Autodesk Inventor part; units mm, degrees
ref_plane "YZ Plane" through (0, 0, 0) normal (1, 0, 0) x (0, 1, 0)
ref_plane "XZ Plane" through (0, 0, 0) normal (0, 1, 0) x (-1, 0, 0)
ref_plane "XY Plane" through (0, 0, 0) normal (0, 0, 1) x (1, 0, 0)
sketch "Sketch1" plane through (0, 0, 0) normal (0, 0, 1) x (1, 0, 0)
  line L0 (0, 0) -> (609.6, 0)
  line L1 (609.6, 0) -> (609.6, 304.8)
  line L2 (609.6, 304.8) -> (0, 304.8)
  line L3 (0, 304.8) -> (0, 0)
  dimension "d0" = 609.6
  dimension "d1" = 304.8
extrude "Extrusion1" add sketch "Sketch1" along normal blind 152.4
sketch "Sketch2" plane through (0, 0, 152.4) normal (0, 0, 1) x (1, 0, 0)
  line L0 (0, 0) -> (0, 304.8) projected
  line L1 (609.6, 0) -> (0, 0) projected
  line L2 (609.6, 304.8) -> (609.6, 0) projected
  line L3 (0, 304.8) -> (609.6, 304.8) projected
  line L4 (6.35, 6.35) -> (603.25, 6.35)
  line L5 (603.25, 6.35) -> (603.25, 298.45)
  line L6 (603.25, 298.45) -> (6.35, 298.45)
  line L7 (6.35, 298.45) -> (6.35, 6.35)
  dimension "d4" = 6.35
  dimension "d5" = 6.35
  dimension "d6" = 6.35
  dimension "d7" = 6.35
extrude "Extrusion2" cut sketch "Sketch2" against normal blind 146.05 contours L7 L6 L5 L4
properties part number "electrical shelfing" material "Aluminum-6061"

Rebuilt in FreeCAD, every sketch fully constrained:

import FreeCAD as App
import Part
import Sketcher
Q = App.Units.Quantity


def add_polygon(sketch, points):
    """Adds a closed chain of lines whose ends are joined by coincident constraints."""
    first, n = sketch.GeometryCount, len(points)
    for a, b in zip(points, points[1:] + points[:1]):
        sketch.addGeometry(Part.LineSegment(App.Vector(*a, 0), App.Vector(*b, 0)), False)
    for i in range(n):
        sketch.addConstraint(Sketcher.Constraint("Coincident", first + i, 2, first + (i + 1) % n, 1))

doc = App.newDocument("Part")
body = doc.addObject("PartDesign::Body", "Body")

sketch1 = doc.addObject("Sketcher::SketchObject", "Sketch")
body.addObject(sketch1)
sketch1.AttachmentSupport = (doc.XY_Plane, [""])
sketch1.MapMode = "FlatFace"
add_polygon(sketch1, [(0, 305), (0, 0), (610, 0), (610, 305)])
sketch1.addConstraint(Sketcher.Constraint("Vertical", 0))
sketch1.addConstraint(Sketcher.Constraint("Horizontal", 1))
sketch1.addConstraint(Sketcher.Constraint("Vertical", 2))
sketch1.addConstraint(Sketcher.Constraint("Horizontal", 3))
sketch1.addConstraint(Sketcher.Constraint("Coincident", 0, 2, -1, 1))
sketch1.addConstraint(Sketcher.Constraint("DistanceX", 1, 1, 1, 2, Q("24 in")))
sketch1.addConstraint(Sketcher.Constraint("DistanceY", 0, 2, 0, 1, Q("12 in")))
pad1 = doc.addObject("PartDesign::Pad", "Pad")
body.addObject(pad1)
pad1.Profile = sketch1
pad1.Length = Q("6 in")

sketch2 = doc.addObject("Sketcher::SketchObject", "Sketch001")
body.addObject(sketch2)
sketch2.AttachmentSupport = (doc.XY_Plane, [""])
sketch2.MapMode = "FlatFace"
sketch2.AttachmentOffset = App.Placement(App.Vector(0, 0, 6 * 25.4), App.Rotation())
add_polygon(sketch2, [(6, 298), (6, 6), (603, 6), (603, 298)])
sketch2.addConstraint(Sketcher.Constraint("Vertical", 0))
sketch2.addConstraint(Sketcher.Constraint("Horizontal", 1))
sketch2.addConstraint(Sketcher.Constraint("Vertical", 2))
sketch2.addConstraint(Sketcher.Constraint("Horizontal", 3))
sketch2.addConstraint(Sketcher.Constraint("DistanceX", -1, 1, 0, 2, Q("0.25 in")))
sketch2.addConstraint(Sketcher.Constraint("DistanceY", -1, 1, 0, 2, Q("0.25 in")))
sketch2.addConstraint(Sketcher.Constraint("DistanceX", 1, 1, 1, 2, Q("23.5 in")))
sketch2.addConstraint(Sketcher.Constraint("DistanceY", 0, 2, 0, 1, Q("11.5 in")))
pocket1 = doc.addObject("PartDesign::Pocket", "Pocket")
body.addObject(pocket1)
pocket1.Profile = sketch2
pocket1.Length = Q("5.75 in")

doc.recompute()
